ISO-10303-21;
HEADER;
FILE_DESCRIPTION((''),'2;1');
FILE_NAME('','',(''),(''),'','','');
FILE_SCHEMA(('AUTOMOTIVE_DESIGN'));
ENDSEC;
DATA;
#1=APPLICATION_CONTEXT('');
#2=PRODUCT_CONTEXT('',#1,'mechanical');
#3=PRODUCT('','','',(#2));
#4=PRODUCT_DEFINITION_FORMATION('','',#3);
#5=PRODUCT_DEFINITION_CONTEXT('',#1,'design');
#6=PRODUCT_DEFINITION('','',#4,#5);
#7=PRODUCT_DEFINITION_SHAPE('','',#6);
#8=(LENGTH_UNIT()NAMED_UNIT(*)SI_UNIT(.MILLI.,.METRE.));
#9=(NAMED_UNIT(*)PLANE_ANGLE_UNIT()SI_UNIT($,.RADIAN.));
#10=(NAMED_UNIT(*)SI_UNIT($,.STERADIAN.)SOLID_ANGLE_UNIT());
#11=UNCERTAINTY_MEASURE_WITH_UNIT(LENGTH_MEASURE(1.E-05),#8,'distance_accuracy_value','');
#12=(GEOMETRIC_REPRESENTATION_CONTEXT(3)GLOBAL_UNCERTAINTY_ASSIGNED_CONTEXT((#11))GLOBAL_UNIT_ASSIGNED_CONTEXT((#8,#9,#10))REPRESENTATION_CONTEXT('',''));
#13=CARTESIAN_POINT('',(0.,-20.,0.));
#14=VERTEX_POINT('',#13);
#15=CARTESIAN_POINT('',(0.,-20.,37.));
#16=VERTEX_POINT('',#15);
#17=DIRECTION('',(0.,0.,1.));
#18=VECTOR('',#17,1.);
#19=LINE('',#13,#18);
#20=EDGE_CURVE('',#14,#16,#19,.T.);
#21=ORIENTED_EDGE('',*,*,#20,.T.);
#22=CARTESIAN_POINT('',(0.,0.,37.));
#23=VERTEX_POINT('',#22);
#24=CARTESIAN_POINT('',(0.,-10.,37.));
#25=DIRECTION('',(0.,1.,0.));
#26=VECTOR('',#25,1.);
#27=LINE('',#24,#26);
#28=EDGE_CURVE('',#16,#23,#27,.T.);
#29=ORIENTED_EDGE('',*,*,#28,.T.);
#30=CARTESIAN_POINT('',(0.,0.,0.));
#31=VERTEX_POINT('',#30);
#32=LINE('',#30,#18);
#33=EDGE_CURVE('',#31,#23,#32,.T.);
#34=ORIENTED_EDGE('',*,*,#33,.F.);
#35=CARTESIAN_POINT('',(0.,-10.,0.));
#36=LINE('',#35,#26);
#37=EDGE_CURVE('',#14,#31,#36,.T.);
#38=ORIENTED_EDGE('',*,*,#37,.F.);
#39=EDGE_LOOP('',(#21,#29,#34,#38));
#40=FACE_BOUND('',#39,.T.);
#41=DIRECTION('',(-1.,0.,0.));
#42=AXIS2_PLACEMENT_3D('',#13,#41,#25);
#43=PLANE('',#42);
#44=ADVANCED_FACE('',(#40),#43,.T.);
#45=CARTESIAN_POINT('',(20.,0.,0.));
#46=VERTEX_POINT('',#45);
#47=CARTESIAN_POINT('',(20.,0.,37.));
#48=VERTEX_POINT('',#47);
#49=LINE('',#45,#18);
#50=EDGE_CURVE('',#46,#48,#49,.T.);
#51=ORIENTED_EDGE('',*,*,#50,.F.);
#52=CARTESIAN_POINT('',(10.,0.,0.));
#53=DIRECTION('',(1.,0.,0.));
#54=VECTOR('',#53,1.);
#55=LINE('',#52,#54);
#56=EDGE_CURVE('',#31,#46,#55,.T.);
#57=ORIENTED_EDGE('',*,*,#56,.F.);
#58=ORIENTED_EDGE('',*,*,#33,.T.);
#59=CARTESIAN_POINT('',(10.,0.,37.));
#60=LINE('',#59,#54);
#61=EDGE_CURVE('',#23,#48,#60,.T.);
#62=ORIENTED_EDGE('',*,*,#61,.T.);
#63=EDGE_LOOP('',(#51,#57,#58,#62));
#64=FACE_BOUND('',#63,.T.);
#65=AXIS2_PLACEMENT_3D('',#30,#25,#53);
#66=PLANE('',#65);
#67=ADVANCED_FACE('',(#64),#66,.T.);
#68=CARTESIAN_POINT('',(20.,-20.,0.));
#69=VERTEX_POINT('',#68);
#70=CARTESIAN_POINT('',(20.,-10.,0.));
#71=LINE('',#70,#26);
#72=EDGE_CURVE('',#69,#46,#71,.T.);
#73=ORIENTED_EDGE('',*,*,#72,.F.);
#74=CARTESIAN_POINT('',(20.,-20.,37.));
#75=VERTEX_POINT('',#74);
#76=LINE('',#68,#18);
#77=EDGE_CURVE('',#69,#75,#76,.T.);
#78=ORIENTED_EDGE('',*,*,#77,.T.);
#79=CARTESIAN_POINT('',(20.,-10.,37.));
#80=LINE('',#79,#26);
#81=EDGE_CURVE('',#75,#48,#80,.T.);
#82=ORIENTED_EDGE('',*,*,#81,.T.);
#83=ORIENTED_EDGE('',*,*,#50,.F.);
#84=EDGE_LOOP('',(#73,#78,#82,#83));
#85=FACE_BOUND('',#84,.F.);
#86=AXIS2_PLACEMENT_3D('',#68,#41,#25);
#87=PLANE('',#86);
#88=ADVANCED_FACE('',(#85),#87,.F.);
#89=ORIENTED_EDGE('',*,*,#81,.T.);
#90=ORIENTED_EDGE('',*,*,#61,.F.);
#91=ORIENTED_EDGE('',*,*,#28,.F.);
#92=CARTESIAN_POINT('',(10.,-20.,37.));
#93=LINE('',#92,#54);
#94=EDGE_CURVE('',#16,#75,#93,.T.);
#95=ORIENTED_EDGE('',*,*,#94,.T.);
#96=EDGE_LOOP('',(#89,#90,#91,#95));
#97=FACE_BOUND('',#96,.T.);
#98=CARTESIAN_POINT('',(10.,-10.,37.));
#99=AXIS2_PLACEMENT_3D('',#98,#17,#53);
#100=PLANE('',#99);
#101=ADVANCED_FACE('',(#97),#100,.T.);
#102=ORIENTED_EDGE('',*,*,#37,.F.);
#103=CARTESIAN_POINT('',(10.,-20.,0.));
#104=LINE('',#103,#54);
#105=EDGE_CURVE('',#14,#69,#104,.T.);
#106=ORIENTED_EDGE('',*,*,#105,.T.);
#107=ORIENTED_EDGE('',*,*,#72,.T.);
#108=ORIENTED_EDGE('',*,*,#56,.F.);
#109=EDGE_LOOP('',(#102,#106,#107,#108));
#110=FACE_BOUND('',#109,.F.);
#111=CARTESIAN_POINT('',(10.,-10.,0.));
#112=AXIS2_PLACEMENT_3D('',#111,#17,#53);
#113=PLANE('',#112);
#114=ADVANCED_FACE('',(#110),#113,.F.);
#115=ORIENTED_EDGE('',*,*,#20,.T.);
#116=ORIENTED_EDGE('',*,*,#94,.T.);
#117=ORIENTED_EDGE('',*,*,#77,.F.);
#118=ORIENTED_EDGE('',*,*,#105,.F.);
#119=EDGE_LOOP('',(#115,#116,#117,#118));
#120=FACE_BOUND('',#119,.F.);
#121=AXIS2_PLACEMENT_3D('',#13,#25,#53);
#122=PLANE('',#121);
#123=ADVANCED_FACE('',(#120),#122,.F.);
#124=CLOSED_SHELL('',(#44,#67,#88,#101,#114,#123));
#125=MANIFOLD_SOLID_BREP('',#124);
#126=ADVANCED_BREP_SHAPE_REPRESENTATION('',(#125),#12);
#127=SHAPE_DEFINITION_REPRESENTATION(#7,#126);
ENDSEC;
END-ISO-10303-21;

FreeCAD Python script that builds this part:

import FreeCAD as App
import Part
import Sketcher
from FreeCAD import Vector

doc = App.newDocument("Part")
body = doc.addObject("PartDesign::Body", "Body")

sketch1 = body.newObject("Sketcher::SketchObject", "Sketch")
sketch1.AttachmentSupport = (doc.getObject("XY_Plane"), [""])
sketch1.MapMode = "FlatFace"
sketch1.addGeometry(Part.LineSegment(Vector(0, 0, 0), Vector(0, -20, 0)), False)
sketch1.addGeometry(Part.LineSegment(Vector(0, -20, 0), Vector(20, -20, 0)), False)
sketch1.addGeometry(Part.LineSegment(Vector(20, -20, 0), Vector(20, 0, 0)), False)
sketch1.addGeometry(Part.LineSegment(Vector(20, 0, 0), Vector(0, 0, 0)), False)
sketch1.addConstraint(Sketcher.Constraint("Coincident", 0, 2, 1, 1))
sketch1.addConstraint(Sketcher.Constraint("Coincident", 1, 2, 2, 1))
sketch1.addConstraint(Sketcher.Constraint("Coincident", 2, 2, 3, 1))
sketch1.addConstraint(Sketcher.Constraint("Coincident", 3, 2, 0, 1))
sketch1.addConstraint(Sketcher.Constraint("Vertical", 0))
sketch1.addConstraint(Sketcher.Constraint("Horizontal", 1))
sketch1.addConstraint(Sketcher.Constraint("Vertical", 2))
sketch1.addConstraint(Sketcher.Constraint("Horizontal", 3))
sketch1.addConstraint(Sketcher.Constraint("Coincident", 3, 2, -1, 1))
sketch1.addConstraint(Sketcher.Constraint("Equal", 3, 0))
sketch1.addConstraint(Sketcher.Constraint("DistanceX", 1, 1, 1, 2, 20.0))
pad1 = body.newObject("PartDesign::Pad", "Pad")
pad1.Profile = sketch1
pad1.Length = 37

doc.recompute()
